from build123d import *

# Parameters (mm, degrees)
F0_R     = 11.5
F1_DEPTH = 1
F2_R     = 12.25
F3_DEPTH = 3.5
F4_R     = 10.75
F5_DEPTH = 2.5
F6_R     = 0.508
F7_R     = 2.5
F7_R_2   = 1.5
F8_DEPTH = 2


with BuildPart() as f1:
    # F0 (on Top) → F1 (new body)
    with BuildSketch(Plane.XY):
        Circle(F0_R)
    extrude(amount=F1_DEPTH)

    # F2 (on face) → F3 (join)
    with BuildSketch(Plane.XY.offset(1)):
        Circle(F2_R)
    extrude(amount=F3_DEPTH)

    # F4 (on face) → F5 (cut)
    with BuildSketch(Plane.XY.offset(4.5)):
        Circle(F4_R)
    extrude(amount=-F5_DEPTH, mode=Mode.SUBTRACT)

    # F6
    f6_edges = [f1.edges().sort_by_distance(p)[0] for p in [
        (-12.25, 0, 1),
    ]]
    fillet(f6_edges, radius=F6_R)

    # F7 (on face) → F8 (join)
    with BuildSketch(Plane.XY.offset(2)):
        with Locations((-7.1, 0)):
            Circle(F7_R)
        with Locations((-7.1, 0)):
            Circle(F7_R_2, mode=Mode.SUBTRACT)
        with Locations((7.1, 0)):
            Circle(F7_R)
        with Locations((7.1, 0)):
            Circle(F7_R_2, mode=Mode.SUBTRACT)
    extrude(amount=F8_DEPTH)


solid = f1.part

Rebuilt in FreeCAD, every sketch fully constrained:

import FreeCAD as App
import Part
import Sketcher
from FreeCAD import Vector


def edges_at(feature, points):
    """Names of the edges that pass closest to the given points."""
    edges = feature.Shape.Edges
    near = lambda p: min(range(len(edges)), key=lambda i: edges[i].distToShape(Part.Vertex(*p))[0])
    return sorted({f"Edge{near(p) + 1}" for p in points})

doc = App.newDocument("Part")
params = doc.addObject("Spreadsheet::Sheet", "Params")
for row, (alias, value) in enumerate([
    ("sketch1_diameter", "23 mm"),
    ("pad1_length", "1 mm"),
    ("sketch2_diameter", "24.5 mm"),
    ("pad2_length", "3.5 mm"),
    ("sketch3_diameter", "21.5 mm"),
    ("pocket1_length", "2.5 mm"),
    ("fillet_radius", "0.508 mm"),
    ("sketch4_diameter", "5 mm"),
    ("sketch4_diameter2", "3 mm"),
    ("pad3_length", "2 mm"),
], start=1):
    params.set(f"A{row}", alias)
    params.set(f"B{row}", "=" + value)
    params.setAlias(f"B{row}", alias)

body = doc.addObject("PartDesign::Body", "Body")

sketch1 = body.newObject("Sketcher::SketchObject", "Sketch")
sketch1.AttachmentSupport = (doc.getObject("XY_Plane"), [""])
sketch1.MapMode = "FlatFace"
sketch1.addGeometry(Part.Circle(Vector(0, 0, 0), Vector(0, 0, 1), 12), False)
sketch1.addConstraint([
    Sketcher.Constraint("Coincident", 0, 3, -1, 1),
    Sketcher.Constraint("Diameter", 0, 23.0),
])
sketch1.setExpression("Constraints[1]", "Params.sketch1_diameter")
pad1 = body.newObject("PartDesign::Pad", "Pad")
pad1.Profile = sketch1
pad1.setExpression("Length", "Params.pad1_length")

sketch2 = body.newObject("Sketcher::SketchObject", "Sketch001")
sketch2.AttachmentSupport = (doc.getObject("XY_Plane"), [""])
sketch2.MapMode = "FlatFace"
sketch2.AttachmentOffset = App.Placement(Vector(0, 0, 1), App.Rotation())
sketch2.addGeometry(Part.Circle(Vector(0, 0, 0), Vector(0, 0, 1), 12), False)
sketch2.addConstraint([
    Sketcher.Constraint("Coincident", 0, 3, -1, 1),
    Sketcher.Constraint("Diameter", 0, 24.5),
])
sketch2.setExpression("Constraints[1]", "Params.sketch2_diameter")
pad2 = body.newObject("PartDesign::Pad", "Pad001")
pad2.Profile = sketch2
pad2.setExpression("Length", "Params.pad2_length")

sketch3 = body.newObject("Sketcher::SketchObject", "Sketch002")
sketch3.AttachmentSupport = (doc.getObject("XY_Plane"), [""])
sketch3.MapMode = "FlatFace"
sketch3.AttachmentOffset = App.Placement(Vector(0, 0, 4.5), App.Rotation())
sketch3.addGeometry(Part.Circle(Vector(0, 0, 0), Vector(0, 0, 1), 11), False)
sketch3.addConstraint([
    Sketcher.Constraint("Coincident", 0, 3, -1, 1),
    Sketcher.Constraint("Diameter", 0, 21.5),
])
sketch3.setExpression("Constraints[1]", "Params.sketch3_diameter")
pocket1 = body.newObject("PartDesign::Pocket", "Pocket")
pocket1.Profile = sketch3
pocket1.setExpression("Length", "Params.pocket1_length")
doc.recompute()

fillet = body.newObject("PartDesign::Fillet", "Fillet")
fillet.Base = (pocket1, edges_at(pocket1, [(-12.25, 0, 1)]))
fillet.setExpression("Radius", "Params.fillet_radius")

sketch4 = body.newObject("Sketcher::SketchObject", "Sketch003")
sketch4.AttachmentSupport = (doc.getObject("XY_Plane"), [""])
sketch4.MapMode = "FlatFace"
sketch4.AttachmentOffset = App.Placement(Vector(0, 0, 2), App.Rotation())
sketch4.addGeometry([
    Part.Circle(Vector(-7.1, 0, 0), Vector(0, 0, 1), 2.5),
    Part.Circle(Vector(-7.1, 0, 0), Vector(0, 0, 1), 1.5),
    Part.Circle(Vector(7.1, 0, 0), Vector(0, 0, 1), 2.5),
    Part.Circle(Vector(7.1, 0, 0), Vector(0, 0, 1), 1.5),
], False)
sketch4.addConstraint([
    Sketcher.Constraint("Coincident", 1, 3, 0, 3),
    Sketcher.Constraint("Coincident", 3, 3, 2, 3),
    Sketcher.Constraint("Equal", 0, 2),
    Sketcher.Constraint("Equal", 1, 3),
    Sketcher.Constraint("Symmetric", 0, 3, 2, 3, -1, 1),
    Sketcher.Constraint("PointOnObject", 0, 3, -1),
    Sketcher.Constraint("Diameter", 0, 5.0),
    Sketcher.Constraint("Diameter", 1, 3.0),
    Sketcher.Constraint("DistanceX", 0, 3, -1, 1, 7.1),
])
sketch4.setExpression("Constraints[6]", "Params.sketch4_diameter")
sketch4.setExpression("Constraints[7]", "Params.sketch4_diameter2")
pad3 = body.newObject("PartDesign::Pad", "Pad002")
pad3.Profile = sketch4
pad3.setExpression("Length", "Params.pad3_length")

doc.recompute()
